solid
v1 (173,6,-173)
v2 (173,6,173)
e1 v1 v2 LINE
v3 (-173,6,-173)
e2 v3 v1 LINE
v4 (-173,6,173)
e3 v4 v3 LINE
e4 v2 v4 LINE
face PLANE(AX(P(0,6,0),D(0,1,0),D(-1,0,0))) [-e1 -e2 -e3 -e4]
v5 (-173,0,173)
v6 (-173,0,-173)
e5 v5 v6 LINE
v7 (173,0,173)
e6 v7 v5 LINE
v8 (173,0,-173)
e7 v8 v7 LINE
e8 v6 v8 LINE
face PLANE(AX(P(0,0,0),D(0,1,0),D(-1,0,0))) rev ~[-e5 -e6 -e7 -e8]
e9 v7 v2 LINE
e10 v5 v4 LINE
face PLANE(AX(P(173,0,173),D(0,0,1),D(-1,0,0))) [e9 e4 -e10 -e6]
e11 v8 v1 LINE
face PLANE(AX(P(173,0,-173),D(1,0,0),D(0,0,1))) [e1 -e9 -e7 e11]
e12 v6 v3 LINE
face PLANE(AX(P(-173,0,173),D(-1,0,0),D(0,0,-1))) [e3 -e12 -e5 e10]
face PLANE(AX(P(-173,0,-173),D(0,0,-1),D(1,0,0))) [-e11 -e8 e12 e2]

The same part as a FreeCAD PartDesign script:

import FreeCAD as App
import Part
import Sketcher
from FreeCAD import Vector

doc = App.newDocument("Part")
body = doc.addObject("PartDesign::Body", "Body")

sketch1 = body.newObject("Sketcher::SketchObject", "Sketch")
sketch1.AttachmentSupport = (doc.getObject("XZ_Plane"), [""])
sketch1.MapMode = "FlatFace"
sketch1.addGeometry(Part.LineSegment(Vector(173, -173, 0), Vector(-173, -173, 0)), False)
sketch1.addGeometry(Part.LineSegment(Vector(-173, -173, 0), Vector(-173, 173, 0)), False)
sketch1.addGeometry(Part.LineSegment(Vector(-173, 173, 0), Vector(173, 173, 0)), False)
sketch1.addGeometry(Part.LineSegment(Vector(173, 173, 0), Vector(173, -173, 0)), False)
sketch1.addConstraint(Sketcher.Constraint("Coincident", 0, 2, 1, 1))
sketch1.addConstraint(Sketcher.Constraint("Coincident", 1, 2, 2, 1))
sketch1.addConstraint(Sketcher.Constraint("Coincident", 2, 2, 3, 1))
sketch1.addConstraint(Sketcher.Constraint("Coincident", 3, 2, 0, 1))
sketch1.addConstraint(Sketcher.Constraint("Horizontal", 0))
sketch1.addConstraint(Sketcher.Constraint("Vertical", 1))
sketch1.addConstraint(Sketcher.Constraint("Horizontal", 2))
sketch1.addConstraint(Sketcher.Constraint("Vertical", 3))
sketch1.addConstraint(Sketcher.Constraint("Symmetric", 0, 2, 2, 2, -1, 1))
sketch1.addConstraint(Sketcher.Constraint("Equal", 2, 1))
sketch1.addConstraint(Sketcher.Constraint("DistanceX", 0, 2, 0, 1, 346.0))
pad1 = body.newObject("PartDesign::Pad", "Pad")
pad1.Profile = sketch1
pad1.Length = 6
pad1.Reversed = True

doc.recompute()
